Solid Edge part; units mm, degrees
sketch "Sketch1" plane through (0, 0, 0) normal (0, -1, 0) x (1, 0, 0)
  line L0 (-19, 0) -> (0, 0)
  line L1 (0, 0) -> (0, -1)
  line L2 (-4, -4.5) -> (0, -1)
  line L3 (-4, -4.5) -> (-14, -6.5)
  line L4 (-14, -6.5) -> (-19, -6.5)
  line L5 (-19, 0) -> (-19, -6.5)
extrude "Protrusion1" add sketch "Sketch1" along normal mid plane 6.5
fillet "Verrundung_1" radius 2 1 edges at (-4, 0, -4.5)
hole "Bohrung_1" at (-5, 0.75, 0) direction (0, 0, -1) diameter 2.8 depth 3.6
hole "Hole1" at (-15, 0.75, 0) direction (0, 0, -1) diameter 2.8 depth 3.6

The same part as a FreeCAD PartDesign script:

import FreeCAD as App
import Part
import Sketcher

V = App.Vector
Q = App.Units.Quantity


def edges_at(feature, points):
    """Names of the edges that pass closest to the given points."""
    edges = feature.Shape.Edges
    near = lambda p: min(range(len(edges)), key=lambda i: edges[i].distToShape(Part.Vertex(*p))[0])
    return sorted({f"Edge{near(p) + 1}" for p in points})


def add_polygon(sketch, points):
    """Adds a closed chain of lines whose ends are joined by coincident constraints."""
    first, n = sketch.GeometryCount, len(points)
    for a, b in zip(points, points[1:] + points[:1]):
        sketch.addGeometry(Part.LineSegment(App.Vector(*a, 0), App.Vector(*b, 0)), False)
    for i in range(n):
        sketch.addConstraint(Sketcher.Constraint("Coincident", first + i, 2, first + (i + 1) % n, 1))

doc = App.newDocument("Part")
body = doc.addObject("PartDesign::Body", "Body")

# Sketch on XZ plane
sketch1 = doc.addObject("Sketcher::SketchObject", "Sketch")
body.addObject(sketch1)
sketch1.AttachmentSupport = (doc.XZ_Plane, [""])
sketch1.MapMode = "FlatFace"
add_polygon(sketch1, [(0, 0), (-19, 0), (-19, -6.5), (-14, -6.5), (-4, -4.5), (0, -1)])  # lines 0-5
sketch1.addConstraint(Sketcher.Constraint("Horizontal", 0))
sketch1.addConstraint(Sketcher.Constraint("Vertical", 1))
sketch1.addConstraint(Sketcher.Constraint("Horizontal", 2))
sketch1.addConstraint(Sketcher.Constraint("Vertical", 5))
sketch1.addConstraint(Sketcher.Constraint("Coincident", 5, 2, -1, 1))
sketch1.addConstraint(Sketcher.Constraint("DistanceX", 0, 2, 0, 1, Q("19 mm")))
sketch1.addConstraint(Sketcher.Constraint("DistanceX", 2, 1, 2, 2, Q("5 mm")))
sketch1.addConstraint(Sketcher.Constraint("DistanceY", 5, 1, 5, 2, Q("1 mm")))
sketch1.addConstraint(Sketcher.Constraint("DistanceY", 1, 2, 1, 1, Q("6.5 mm")))
sketch1.addConstraint(Sketcher.Constraint("DistanceX", 3, 2, -1, 1, Q("4 mm")))
sketch1.addConstraint(Sketcher.Constraint("DistanceY", 2, 2, 3, 2, Q("2 mm")))
pad1 = doc.addObject("PartDesign::Pad", "Pad")
body.addObject(pad1)
pad1.Profile = sketch1
pad1.Length = 6.5
pad1.Midplane = True
doc.recompute()

fillet = doc.addObject("PartDesign::Fillet", "Fillet")
body.addObject(fillet)
fillet.Base = (pad1, edges_at(pad1, [(-4, 0, -4.5)]))
fillet.Radius = 2

# Sketch on XY plane
sketch2 = doc.addObject("Sketcher::SketchObject", "Sketch001")
body.addObject(sketch2)
sketch2.AttachmentSupport = (doc.XY_Plane, [""])
sketch2.MapMode = "FlatFace"
sketch2.addGeometry(Part.Circle(V(-5, 0.8, 0), V(0, 0, 1), 1.4), False)
sketch2.addConstraint(Sketcher.Constraint("Diameter", 0, Q("2.8 mm")))
sketch2.addConstraint(Sketcher.Constraint("DistanceX", 0, 3, -1, 1, Q("5 mm")))
sketch2.addConstraint(Sketcher.Constraint("DistanceY", -1, 1, 0, 3, Q("0.75 mm")))
doc.recompute()
hole = doc.addObject("PartDesign::Hole", "Hole")
body.addObject(hole)
hole.Profile = sketch2
hole.ThreadType = "None"
hole.Diameter = 2.8
hole.DepthType = "Dimension"
hole.Depth = 3.6
hole.DrillPoint = "Flat"

# Sketch on XY plane
sketch3 = doc.addObject("Sketcher::SketchObject", "Sketch002")
body.addObject(sketch3)
sketch3.AttachmentSupport = (doc.XY_Plane, [""])
sketch3.MapMode = "FlatFace"
sketch3.addGeometry(Part.Circle(V(-15, 0.8, 0), V(0, 0, 1), 1.4), False)
sketch3.addConstraint(Sketcher.Constraint("Diameter", 0, Q("2.8 mm")))
sketch3.addConstraint(Sketcher.Constraint("DistanceX", 0, 3, -1, 1, Q("15 mm")))
sketch3.addConstraint(Sketcher.Constraint("DistanceY", -1, 1, 0, 3, Q("0.75 mm")))
doc.recompute()
hole2 = doc.addObject("PartDesign::Hole", "Hole001")
body.addObject(hole2)
hole2.Profile = sketch3
hole2.ThreadType = "None"
hole2.Diameter = 2.8
hole2.DepthType = "Dimension"
hole2.Depth = 3.6
hole2.DrillPoint = "Flat"

doc.recompute()
